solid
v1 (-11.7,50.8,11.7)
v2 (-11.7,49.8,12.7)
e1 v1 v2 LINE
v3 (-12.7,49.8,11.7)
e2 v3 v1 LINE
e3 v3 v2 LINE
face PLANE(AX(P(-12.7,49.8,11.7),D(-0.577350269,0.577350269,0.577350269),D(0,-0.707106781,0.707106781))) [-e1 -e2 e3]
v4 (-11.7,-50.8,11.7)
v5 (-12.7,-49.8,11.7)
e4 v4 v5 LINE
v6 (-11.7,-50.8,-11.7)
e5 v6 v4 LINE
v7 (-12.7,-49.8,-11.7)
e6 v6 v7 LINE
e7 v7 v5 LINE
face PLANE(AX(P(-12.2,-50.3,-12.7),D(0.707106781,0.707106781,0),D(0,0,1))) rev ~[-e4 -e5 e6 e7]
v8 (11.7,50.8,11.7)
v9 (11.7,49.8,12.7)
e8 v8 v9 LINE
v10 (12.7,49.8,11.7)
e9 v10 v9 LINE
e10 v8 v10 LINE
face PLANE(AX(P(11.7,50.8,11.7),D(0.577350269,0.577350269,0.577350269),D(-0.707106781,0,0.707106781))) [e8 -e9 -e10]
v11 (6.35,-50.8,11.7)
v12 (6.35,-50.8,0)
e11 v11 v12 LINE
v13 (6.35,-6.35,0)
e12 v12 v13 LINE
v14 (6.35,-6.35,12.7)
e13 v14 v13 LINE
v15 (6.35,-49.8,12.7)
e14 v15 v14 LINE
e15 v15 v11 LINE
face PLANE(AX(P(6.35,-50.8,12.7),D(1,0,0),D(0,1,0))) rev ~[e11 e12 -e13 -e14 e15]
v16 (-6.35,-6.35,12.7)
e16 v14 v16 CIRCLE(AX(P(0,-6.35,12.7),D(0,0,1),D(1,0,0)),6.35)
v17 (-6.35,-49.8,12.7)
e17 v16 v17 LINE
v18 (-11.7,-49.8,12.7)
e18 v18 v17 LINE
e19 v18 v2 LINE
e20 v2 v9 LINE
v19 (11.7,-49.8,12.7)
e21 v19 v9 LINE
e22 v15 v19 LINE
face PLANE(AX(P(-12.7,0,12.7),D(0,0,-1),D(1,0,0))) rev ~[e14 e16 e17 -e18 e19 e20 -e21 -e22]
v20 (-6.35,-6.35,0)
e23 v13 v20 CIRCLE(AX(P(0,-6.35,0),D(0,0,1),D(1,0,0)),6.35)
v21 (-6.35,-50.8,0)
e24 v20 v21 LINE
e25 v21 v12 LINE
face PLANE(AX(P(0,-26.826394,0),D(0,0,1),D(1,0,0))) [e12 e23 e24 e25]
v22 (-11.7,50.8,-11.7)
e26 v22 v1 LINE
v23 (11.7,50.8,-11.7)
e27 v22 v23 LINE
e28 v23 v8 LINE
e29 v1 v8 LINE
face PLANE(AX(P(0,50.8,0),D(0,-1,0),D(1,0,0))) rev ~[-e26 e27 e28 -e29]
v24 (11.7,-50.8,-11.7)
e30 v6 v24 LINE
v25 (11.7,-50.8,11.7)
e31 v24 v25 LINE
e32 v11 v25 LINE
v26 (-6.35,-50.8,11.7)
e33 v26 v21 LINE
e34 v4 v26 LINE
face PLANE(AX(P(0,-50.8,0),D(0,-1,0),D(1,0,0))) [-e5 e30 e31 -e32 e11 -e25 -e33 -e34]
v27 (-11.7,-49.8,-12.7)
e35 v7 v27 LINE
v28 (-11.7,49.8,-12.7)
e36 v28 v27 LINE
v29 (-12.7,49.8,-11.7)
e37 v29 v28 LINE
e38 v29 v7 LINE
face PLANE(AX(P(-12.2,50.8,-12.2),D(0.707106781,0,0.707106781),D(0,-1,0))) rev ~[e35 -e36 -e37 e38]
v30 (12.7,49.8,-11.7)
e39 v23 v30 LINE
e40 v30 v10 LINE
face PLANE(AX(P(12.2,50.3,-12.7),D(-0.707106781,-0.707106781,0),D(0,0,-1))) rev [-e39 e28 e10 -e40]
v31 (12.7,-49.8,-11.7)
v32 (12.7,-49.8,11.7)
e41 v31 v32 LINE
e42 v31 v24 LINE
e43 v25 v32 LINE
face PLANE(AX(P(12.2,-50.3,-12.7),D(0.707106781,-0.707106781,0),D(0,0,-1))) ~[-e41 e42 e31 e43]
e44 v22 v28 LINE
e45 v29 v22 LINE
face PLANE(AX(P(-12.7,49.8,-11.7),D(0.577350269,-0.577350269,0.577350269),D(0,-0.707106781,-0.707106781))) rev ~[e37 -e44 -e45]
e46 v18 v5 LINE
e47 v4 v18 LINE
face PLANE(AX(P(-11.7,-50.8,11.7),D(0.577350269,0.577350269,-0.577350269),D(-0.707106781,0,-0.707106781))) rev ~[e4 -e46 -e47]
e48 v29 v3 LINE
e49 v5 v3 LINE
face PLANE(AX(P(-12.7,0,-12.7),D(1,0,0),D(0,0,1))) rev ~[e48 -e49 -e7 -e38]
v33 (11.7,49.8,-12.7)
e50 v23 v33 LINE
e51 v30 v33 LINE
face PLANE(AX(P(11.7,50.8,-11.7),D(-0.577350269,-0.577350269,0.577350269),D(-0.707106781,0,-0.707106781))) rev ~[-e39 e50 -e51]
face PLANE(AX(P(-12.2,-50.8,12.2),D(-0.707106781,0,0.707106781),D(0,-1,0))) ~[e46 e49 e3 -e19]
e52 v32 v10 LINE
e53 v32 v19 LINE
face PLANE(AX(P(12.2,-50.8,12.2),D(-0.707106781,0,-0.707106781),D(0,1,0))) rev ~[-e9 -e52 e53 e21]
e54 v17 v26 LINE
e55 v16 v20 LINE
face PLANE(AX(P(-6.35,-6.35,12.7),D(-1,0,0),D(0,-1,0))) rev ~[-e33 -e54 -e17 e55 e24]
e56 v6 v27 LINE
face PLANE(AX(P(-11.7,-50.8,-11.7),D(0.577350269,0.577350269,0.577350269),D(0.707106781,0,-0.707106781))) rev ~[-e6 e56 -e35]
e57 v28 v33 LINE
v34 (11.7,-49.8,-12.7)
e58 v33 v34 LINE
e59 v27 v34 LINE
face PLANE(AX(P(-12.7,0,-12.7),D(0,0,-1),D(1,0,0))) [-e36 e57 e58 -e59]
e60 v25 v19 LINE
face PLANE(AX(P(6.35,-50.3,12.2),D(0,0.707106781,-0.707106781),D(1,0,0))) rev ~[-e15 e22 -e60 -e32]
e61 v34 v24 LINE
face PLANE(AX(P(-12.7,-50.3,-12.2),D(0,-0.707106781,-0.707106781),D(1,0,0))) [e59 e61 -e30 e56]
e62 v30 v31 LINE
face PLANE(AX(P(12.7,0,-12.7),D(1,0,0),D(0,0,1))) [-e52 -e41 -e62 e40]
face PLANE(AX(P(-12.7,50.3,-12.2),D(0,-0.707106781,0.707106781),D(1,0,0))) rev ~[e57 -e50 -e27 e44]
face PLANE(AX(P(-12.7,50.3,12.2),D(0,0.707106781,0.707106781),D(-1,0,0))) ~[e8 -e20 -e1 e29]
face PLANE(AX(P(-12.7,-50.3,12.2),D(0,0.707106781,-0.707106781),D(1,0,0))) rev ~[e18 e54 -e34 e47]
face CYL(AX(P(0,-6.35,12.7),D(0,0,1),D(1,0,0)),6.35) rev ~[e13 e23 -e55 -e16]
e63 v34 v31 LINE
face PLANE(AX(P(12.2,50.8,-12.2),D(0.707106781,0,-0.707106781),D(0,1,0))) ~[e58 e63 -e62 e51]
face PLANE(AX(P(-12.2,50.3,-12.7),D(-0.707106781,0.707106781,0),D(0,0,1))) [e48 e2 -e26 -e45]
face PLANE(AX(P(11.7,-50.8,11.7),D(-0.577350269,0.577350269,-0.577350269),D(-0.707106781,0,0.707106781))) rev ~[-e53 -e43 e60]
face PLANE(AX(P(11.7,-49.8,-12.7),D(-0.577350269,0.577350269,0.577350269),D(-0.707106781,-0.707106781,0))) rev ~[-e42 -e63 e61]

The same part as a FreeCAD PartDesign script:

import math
import FreeCAD as App
import Part
import Sketcher
from FreeCAD import Vector
Q = App.Units.Quantity


def edges_at(feature, points):
    """Names of the edges that pass closest to the given points."""
    edges = feature.Shape.Edges
    near = lambda p: min(range(len(edges)), key=lambda i: edges[i].distToShape(Part.Vertex(*p))[0])
    return sorted({f"Edge{near(p) + 1}" for p in points})

doc = App.newDocument("Part")
body = doc.addObject("PartDesign::Body", "Body")

# Sketch on XZ plane
sketch1 = body.newObject("Sketcher::SketchObject", "Sketch")
sketch1.AttachmentSupport = (doc.getObject("XZ_Plane"), [""])
sketch1.MapMode = "FlatFace"
sketch1.addGeometry([
    Part.LineSegment(Vector(-13, 13, 0), Vector(-13, -13, 0)),
    Part.LineSegment(Vector(-13, -13, 0), Vector(13, -13, 0)),
    Part.LineSegment(Vector(13, -13, 0), Vector(13, 13, 0)),
    Part.LineSegment(Vector(13, 13, 0), Vector(-13, 13, 0)),
], False)
sketch1.addConstraint([
    Sketcher.Constraint("Coincident", 0, 2, 1, 1),
    Sketcher.Constraint("Coincident", 1, 2, 2, 1),
    Sketcher.Constraint("Coincident", 2, 2, 3, 1),
    Sketcher.Constraint("Coincident", 3, 2, 0, 1),
    Sketcher.Constraint("Vertical", 0),
    Sketcher.Constraint("Horizontal", 1),
    Sketcher.Constraint("Vertical", 2),
    Sketcher.Constraint("Horizontal", 3),
    Sketcher.Constraint("Symmetric", 0, 2, 2, 2, -1, 1),
    Sketcher.Constraint("Equal", 3, 0),
    Sketcher.Constraint("DistanceX", 1, 1, 1, 2, Q("1 in")),
])
pad1 = body.newObject("PartDesign::Pad", "Pad")
pad1.Profile = sketch1
pad1.Length = Q("4 in")
pad1.Midplane = True

# Sketch on XY plane
sketch2 = body.newObject("Sketcher::SketchObject", "Sketch001")
sketch2.AttachmentSupport = (doc.getObject("XY_Plane"), [""])
sketch2.MapMode = "FlatFace"
sketch2.AttachmentOffset = App.Placement(Vector(0, 0, 0.5 * 25.4), App.Rotation())
sketch2.addGeometry([
    Part.LineSegment(Vector(-6, -6, 0), Vector(-6, -51, 0)),
    Part.LineSegment(Vector(-6, -51, 0), Vector(6, -51, 0)),
    Part.LineSegment(Vector(6, -51, 0), Vector(6, -6, 0)),
    Part.ArcOfCircle(Part.Circle(Vector(0, -6, 0), Vector(0, 0, 1), 6), math.radians(0), math.radians(180)),
], False)
sketch2.addConstraint([
    Sketcher.Constraint("Coincident", 0, 2, 1, 1),
    Sketcher.Constraint("Coincident", 1, 2, 2, 1),
    Sketcher.Constraint("Tangent", 2, 2, 3, 1),
    Sketcher.Constraint("Tangent", 3, 2, 0, 1),
    Sketcher.Constraint("Vertical", 0),
    Sketcher.Constraint("Horizontal", 1),
    Sketcher.Constraint("Vertical", 2),
    Sketcher.Constraint("PointOnObject", 3, 3, -2),
    Sketcher.Constraint("Radius", 3, Q("0.25 in")),
    Sketcher.Constraint("DistanceY", 0, 2, -1, 1, Q("2 in")),
    Sketcher.Constraint("DistanceY", 0, 2, 0, 1, Q("1.75 in")),
])
pocket1 = body.newObject("PartDesign::Pocket", "Pocket")
pocket1.Profile = sketch2
pocket1.Length = Q("0.5 in")
doc.recompute()

chamfer = body.newObject("PartDesign::Chamfer", "Chamfer")
chamfer.Base = (pocket1, edges_at(pocket1, [
    (12.7, 0, 12.7),
    (12.7, -50.8, 0),
    (12.7, 0, -12.7),
    (12.7, 50.8, 0),
    (0, 50.8, -12.7),
    (0, 50.8, 12.7),
    (-12.7, 50.8, 0),
    (-12.7, 0, 12.7),
    (-9.525, -50.8, 12.7),
    (9.525, -50.8, 12.7),
    (-12.7, 0, -12.7),
    (-12.7, -50.8, 0),
    (0, -50.8, -12.7),
]))
chamfer.Size = 1

doc.recompute()
